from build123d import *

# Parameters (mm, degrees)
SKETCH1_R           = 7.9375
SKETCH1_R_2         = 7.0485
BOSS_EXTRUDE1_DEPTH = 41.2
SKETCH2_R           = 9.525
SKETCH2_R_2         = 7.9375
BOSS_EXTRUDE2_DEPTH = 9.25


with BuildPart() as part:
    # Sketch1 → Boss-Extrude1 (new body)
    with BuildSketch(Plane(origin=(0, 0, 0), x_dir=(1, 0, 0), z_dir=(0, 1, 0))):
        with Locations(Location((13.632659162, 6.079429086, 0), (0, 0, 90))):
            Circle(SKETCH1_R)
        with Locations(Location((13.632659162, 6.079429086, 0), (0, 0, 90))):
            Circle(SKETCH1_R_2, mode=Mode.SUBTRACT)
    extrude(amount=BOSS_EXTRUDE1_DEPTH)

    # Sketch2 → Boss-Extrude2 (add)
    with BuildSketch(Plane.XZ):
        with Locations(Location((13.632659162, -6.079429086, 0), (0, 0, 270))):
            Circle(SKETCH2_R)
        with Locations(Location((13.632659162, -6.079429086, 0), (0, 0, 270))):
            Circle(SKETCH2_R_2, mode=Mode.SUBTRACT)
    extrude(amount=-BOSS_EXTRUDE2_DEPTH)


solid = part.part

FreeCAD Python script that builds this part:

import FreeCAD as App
import Part
import Sketcher
Q = App.Units.Quantity

doc = App.newDocument("Part")
body = doc.addObject("PartDesign::Body", "Body")

# Sketch on XZ plane
sketch1 = body.newObject("Sketcher::SketchObject", "Sketch")
sketch1.AttachmentSupport = (doc.getObject("XZ_Plane"), [""])
sketch1.MapMode = "FlatFace"
sketch1.addGeometry(Part.Circle(App.Vector(13.632659, -6.079429, 0), App.Vector(0, 0, 1), 7.9375), False)
sketch1.addGeometry(Part.Circle(App.Vector(13.632659, -6.079429, 0), App.Vector(0, 0, 1), 7.0485), False)
sketch1.addConstraint(Sketcher.Constraint("Coincident", 1, 3, 0, 3))
sketch1.addConstraint(Sketcher.Constraint("Diameter", 0, Q("0.625 in")))
sketch1.addConstraint(Sketcher.Constraint("Diameter", 1, Q("0.555 in")))
sketch1.addConstraint(Sketcher.Constraint("DistanceX", -1, 1, 0, 3, 13.632659))
sketch1.addConstraint(Sketcher.Constraint("DistanceY", 0, 3, -1, 1, 6.079429))
pad1 = body.newObject("PartDesign::Pad", "Pad")
pad1.Profile = sketch1
pad1.Length = 41.2
pad1.Reversed = True

# Sketch on XZ plane
sketch2 = body.newObject("Sketcher::SketchObject", "Sketch001")
sketch2.AttachmentSupport = (doc.getObject("XZ_Plane"), [""])
sketch2.MapMode = "FlatFace"
sketch2.addGeometry(Part.Circle(App.Vector(13.632659, -6.079429, 0), App.Vector(0, 0, 1), 9.525), False)
sketch2.addGeometry(Part.Circle(App.Vector(13.632659, -6.079429, 0), App.Vector(0, 0, 1), 7.9375), False)
sketch2.addConstraint(Sketcher.Constraint("Coincident", 1, 3, 0, 3))
sketch2.addConstraint(Sketcher.Constraint("Diameter", 0, Q("0.75 in")))
sketch2.addConstraint(Sketcher.Constraint("Diameter", 1, Q("0.625 in")))
sketch2.addConstraint(Sketcher.Constraint("DistanceX", -1, 1, 0, 3, 13.632659))
sketch2.addConstraint(Sketcher.Constraint("DistanceY", 0, 3, -1, 1, 6.079429))
pad2 = body.newObject("PartDesign::Pad", "Pad001")
pad2.Profile = sketch2
pad2.Length = 9.25
pad2.Reversed = True

doc.recompute()
